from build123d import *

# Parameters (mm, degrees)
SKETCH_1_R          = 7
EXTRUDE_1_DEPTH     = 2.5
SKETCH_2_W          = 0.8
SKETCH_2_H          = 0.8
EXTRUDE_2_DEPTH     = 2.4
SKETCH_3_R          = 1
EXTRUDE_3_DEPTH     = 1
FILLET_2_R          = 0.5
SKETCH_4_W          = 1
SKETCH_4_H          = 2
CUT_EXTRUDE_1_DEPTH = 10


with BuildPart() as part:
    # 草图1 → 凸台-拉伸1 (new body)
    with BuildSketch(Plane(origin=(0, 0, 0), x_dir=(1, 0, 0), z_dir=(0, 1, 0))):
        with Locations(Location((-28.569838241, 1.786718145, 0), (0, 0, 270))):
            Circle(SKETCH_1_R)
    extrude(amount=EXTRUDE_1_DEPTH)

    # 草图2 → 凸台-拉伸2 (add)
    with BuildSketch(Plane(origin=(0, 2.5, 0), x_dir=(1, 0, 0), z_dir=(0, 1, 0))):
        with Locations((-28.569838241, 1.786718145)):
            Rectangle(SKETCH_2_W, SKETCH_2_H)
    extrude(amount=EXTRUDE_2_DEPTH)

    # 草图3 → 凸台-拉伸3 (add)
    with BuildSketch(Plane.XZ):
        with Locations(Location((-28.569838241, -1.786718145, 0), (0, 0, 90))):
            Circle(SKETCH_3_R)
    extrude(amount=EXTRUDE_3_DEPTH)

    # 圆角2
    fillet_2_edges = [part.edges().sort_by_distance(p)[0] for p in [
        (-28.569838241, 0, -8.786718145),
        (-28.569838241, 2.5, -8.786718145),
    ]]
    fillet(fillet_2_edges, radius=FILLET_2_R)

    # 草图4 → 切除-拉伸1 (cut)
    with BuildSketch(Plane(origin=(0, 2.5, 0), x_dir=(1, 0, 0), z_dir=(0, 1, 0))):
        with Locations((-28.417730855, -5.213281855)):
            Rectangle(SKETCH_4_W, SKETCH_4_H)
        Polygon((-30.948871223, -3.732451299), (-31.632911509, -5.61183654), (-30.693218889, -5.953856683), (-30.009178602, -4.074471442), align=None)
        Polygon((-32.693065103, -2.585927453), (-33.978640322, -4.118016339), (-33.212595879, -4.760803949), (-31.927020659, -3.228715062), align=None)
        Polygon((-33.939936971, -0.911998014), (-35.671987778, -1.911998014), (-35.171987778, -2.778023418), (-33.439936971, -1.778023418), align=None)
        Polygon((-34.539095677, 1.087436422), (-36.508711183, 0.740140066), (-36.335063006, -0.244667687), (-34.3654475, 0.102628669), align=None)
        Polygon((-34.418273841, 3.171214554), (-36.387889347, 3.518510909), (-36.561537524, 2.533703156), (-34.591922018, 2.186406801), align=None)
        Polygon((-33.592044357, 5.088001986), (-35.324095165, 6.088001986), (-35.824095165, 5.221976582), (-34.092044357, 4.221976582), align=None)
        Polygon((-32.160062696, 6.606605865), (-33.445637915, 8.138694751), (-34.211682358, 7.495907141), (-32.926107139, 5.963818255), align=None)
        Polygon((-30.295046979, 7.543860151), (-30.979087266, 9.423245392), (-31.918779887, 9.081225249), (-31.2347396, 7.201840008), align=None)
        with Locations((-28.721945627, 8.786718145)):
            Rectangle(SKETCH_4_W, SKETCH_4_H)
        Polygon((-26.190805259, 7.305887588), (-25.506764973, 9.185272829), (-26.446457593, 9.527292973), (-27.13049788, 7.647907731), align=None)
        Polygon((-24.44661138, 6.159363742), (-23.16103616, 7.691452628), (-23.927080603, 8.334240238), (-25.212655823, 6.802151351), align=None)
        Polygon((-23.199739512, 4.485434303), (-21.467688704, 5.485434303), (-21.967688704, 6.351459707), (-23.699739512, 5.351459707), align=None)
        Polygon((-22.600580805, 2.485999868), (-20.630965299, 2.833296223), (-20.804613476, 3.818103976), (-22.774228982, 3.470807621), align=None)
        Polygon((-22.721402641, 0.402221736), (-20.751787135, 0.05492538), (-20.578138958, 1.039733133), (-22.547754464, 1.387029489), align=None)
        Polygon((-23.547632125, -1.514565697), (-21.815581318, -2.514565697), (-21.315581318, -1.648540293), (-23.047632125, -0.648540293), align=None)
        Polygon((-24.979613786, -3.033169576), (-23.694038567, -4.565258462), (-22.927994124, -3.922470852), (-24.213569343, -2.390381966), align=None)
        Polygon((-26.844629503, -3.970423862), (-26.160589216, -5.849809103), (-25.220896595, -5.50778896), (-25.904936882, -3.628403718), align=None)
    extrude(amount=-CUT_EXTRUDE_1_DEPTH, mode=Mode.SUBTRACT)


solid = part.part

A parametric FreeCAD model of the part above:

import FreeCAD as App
import Part
import Sketcher
from FreeCAD import Vector
Q = App.Units.Quantity


def edges_at(feature, points):
    """Names of the edges that pass closest to the given points."""
    edges = feature.Shape.Edges
    near = lambda p: min(range(len(edges)), key=lambda i: edges[i].distToShape(Part.Vertex(*p))[0])
    return sorted({f"Edge{near(p) + 1}" for p in points})

doc = App.newDocument("Part")
body = doc.addObject("PartDesign::Body", "Body")

# Sketch on XZ plane
sketch1 = doc.addObject("Sketcher::SketchObject", "Sketch")
body.addObject(sketch1)
sketch1.AttachmentSupport = (doc.XZ_Plane, [""])
sketch1.MapMode = "FlatFace"
sketch1.addGeometry(Part.Circle(Vector(-28.569838, -1.786718, 0), Vector(0, 0, 1), 7), False)
sketch1.addConstraint([
    Sketcher.Constraint("Diameter", 0, Q("14 mm")),
    Sketcher.Constraint("DistanceX", 0, 3, -1, 1, Q("28.569838 mm")),
    Sketcher.Constraint("DistanceY", 0, 3, -1, 1, Q("1.786718 mm")),
])
pad1 = doc.addObject("PartDesign::Pad", "Pad")
body.addObject(pad1)
pad1.Profile = sketch1
pad1.Length = 2.5
pad1.Reversed = True

# Sketch on XZ plane
sketch2 = doc.addObject("Sketcher::SketchObject", "Sketch001")
body.addObject(sketch2)
sketch2.AttachmentSupport = (doc.XZ_Plane, [""])
sketch2.MapMode = "FlatFace"
sketch2.AttachmentOffset = App.Placement(Vector(0, 0, -2.5), App.Rotation())
sketch2.addGeometry([
    Part.LineSegment(Vector(-28.969838, -2.186718, 0), Vector(-28.969838, -1.386718, 0)),
    Part.LineSegment(Vector(-28.969838, -1.386718, 0), Vector(-28.169838, -1.386718, 0)),
    Part.LineSegment(Vector(-28.169838, -1.386718, 0), Vector(-28.169838, -2.186718, 0)),
    Part.LineSegment(Vector(-28.169838, -2.186718, 0), Vector(-28.969838, -2.186718, 0)),
], False)
sketch2.addConstraint([
    Sketcher.Constraint("Coincident", 0, 2, 1, 1),
    Sketcher.Constraint("Coincident", 1, 2, 2, 1),
    Sketcher.Constraint("Coincident", 2, 2, 3, 1),
    Sketcher.Constraint("Coincident", 3, 2, 0, 1),
    Sketcher.Constraint("Vertical", 0),
    Sketcher.Constraint("Horizontal", 1),
    Sketcher.Constraint("Vertical", 2),
    Sketcher.Constraint("Horizontal", 3),
    Sketcher.Constraint("Equal", 3, 0),
    Sketcher.Constraint("DistanceX", 1, 1, 1, 2, Q("0.8 mm")),
    Sketcher.Constraint("DistanceX", 0, 2, -1, 1, Q("28.969838 mm")),
    Sketcher.Constraint("DistanceY", 0, 2, -1, 1, Q("1.386718 mm")),
])
pad2 = doc.addObject("PartDesign::Pad", "Pad001")
body.addObject(pad2)
pad2.Profile = sketch2
pad2.Length = 2.4
pad2.Reversed = True

# Sketch on XZ plane
sketch3 = doc.addObject("Sketcher::SketchObject", "Sketch002")
body.addObject(sketch3)
sketch3.AttachmentSupport = (doc.XZ_Plane, [""])
sketch3.MapMode = "FlatFace"
sketch3.addGeometry(Part.Circle(Vector(-28.569838, -1.786718, 0), Vector(0, 0, 1), 1), False)
sketch3.addConstraint([
    Sketcher.Constraint("Diameter", 0, Q("2 mm")),
    Sketcher.Constraint("DistanceX", 0, 3, -1, 1, Q("28.569838 mm")),
    Sketcher.Constraint("DistanceY", 0, 3, -1, 1, Q("1.786718 mm")),
])
pad3 = doc.addObject("PartDesign::Pad", "Pad002")
body.addObject(pad3)
pad3.Profile = sketch3
pad3.Length = 1
doc.recompute()

fillet = doc.addObject("PartDesign::Fillet", "Fillet")
body.addObject(fillet)
fillet.Base = (pad3, edges_at(pad3, [(-28.57, 0, -8.787), (-28.57, 2.5, -8.787)]))
fillet.Radius = 0.5

# Sketch on XZ plane
sketch4 = doc.addObject("Sketcher::SketchObject", "Sketch003")
body.addObject(sketch4)
sketch4.AttachmentSupport = (doc.XZ_Plane, [""])
sketch4.MapMode = "FlatFace"
sketch4.AttachmentOffset = App.Placement(Vector(0, 0, -2.5), App.Rotation())
sketch4.addGeometry([
    Part.LineSegment(Vector(-28.917731, 4.213282, 0), Vector(-28.917731, 6.213282, 0)),  # 0
    Part.LineSegment(Vector(-28.917731, 6.213282, 0), Vector(-27.917731, 6.213282, 0)),  # 1
    Part.LineSegment(Vector(-27.917731, 6.213282, 0), Vector(-27.917731, 4.213282, 0)),  # 2
    Part.LineSegment(Vector(-27.917731, 4.213282, 0), Vector(-28.917731, 4.213282, 0)),  # 3
    Part.LineSegment(Vector(-30.948871, 3.732451, 0), Vector(-31.632912, 5.611837, 0)),  # 4
    Part.LineSegment(Vector(-31.632912, 5.611837, 0), Vector(-30.693219, 5.953857, 0)),  # 5
    Part.LineSegment(Vector(-30.693219, 5.953857, 0), Vector(-30.009179, 4.074471, 0)),  # 6
    Part.LineSegment(Vector(-30.009179, 4.074471, 0), Vector(-30.948871, 3.732451, 0)),  # 7
    Part.LineSegment(Vector(-32.693065, 2.585927, 0), Vector(-33.97864, 4.118016, 0)),  # 8
    Part.LineSegment(Vector(-33.97864, 4.118016, 0), Vector(-33.212596, 4.760804, 0)),  # 9
    Part.LineSegment(Vector(-33.212596, 4.760804, 0), Vector(-31.927021, 3.228715, 0)),  # 10
    Part.LineSegment(Vector(-31.927021, 3.228715, 0), Vector(-32.693065, 2.585927, 0)),  # 11
    Part.LineSegment(Vector(-33.939937, 0.911998, 0), Vector(-35.671988, 1.911998, 0)),  # 12
    Part.LineSegment(Vector(-35.671988, 1.911998, 0), Vector(-35.171988, 2.778023, 0)),  # 13
    Part.LineSegment(Vector(-35.171988, 2.778023, 0), Vector(-33.439937, 1.778023, 0)),  # 14
    Part.LineSegment(Vector(-33.439937, 1.778023, 0), Vector(-33.939937, 0.911998, 0)),  # 15
    Part.LineSegment(Vector(-34.539096, -1.087436, 0), Vector(-36.508711, -0.74014, 0)),  # 16
    Part.LineSegment(Vector(-36.508711, -0.74014, 0), Vector(-36.335063, 0.244668, 0)),  # 17
    Part.LineSegment(Vector(-36.335063, 0.244668, 0), Vector(-34.365448, -0.102629, 0)),  # 18
    Part.LineSegment(Vector(-34.365448, -0.102629, 0), Vector(-34.539096, -1.087436, 0)),  # 19
    Part.LineSegment(Vector(-34.418274, -3.171215, 0), Vector(-36.387889, -3.518511, 0)),  # 20
    Part.LineSegment(Vector(-36.387889, -3.518511, 0), Vector(-36.561538, -2.533703, 0)),  # 21
    Part.LineSegment(Vector(-36.561538, -2.533703, 0), Vector(-34.591922, -2.186407, 0)),  # 22
    Part.LineSegment(Vector(-34.591922, -2.186407, 0), Vector(-34.418274, -3.171215, 0)),  # 23
    Part.LineSegment(Vector(-33.592044, -5.088002, 0), Vector(-35.324095, -6.088002, 0)),  # 24
    Part.LineSegment(Vector(-35.324095, -6.088002, 0), Vector(-35.824095, -5.221977, 0)),  # 25
    Part.LineSegment(Vector(-35.824095, -5.221977, 0), Vector(-34.092044, -4.221977, 0)),  # 26
    Part.LineSegment(Vector(-34.092044, -4.221977, 0), Vector(-33.592044, -5.088002, 0)),  # 27
    Part.LineSegment(Vector(-32.160063, -6.606606, 0), Vector(-33.445638, -8.138695, 0)),  # 28
    Part.LineSegment(Vector(-33.445638, -8.138695, 0), Vector(-34.211682, -7.495907, 0)),  # 29
    Part.LineSegment(Vector(-34.211682, -7.495907, 0), Vector(-32.926107, -5.963818, 0)),  # 30
    Part.LineSegment(Vector(-32.926107, -5.963818, 0), Vector(-32.160063, -6.606606, 0)),  # 31
    Part.LineSegment(Vector(-30.295047, -7.54386, 0), Vector(-30.979087, -9.423245, 0)),  # 32
    Part.LineSegment(Vector(-30.979087, -9.423245, 0), Vector(-31.91878, -9.081225, 0)),  # 33
    Part.LineSegment(Vector(-31.91878, -9.081225, 0), Vector(-31.23474, -7.20184, 0)),  # 34
    Part.LineSegment(Vector(-31.23474, -7.20184, 0), Vector(-30.295047, -7.54386, 0)),  # 35
    Part.LineSegment(Vector(-29.221946, -9.786718, 0), Vector(-29.221946, -7.786718, 0)),  # 36
    Part.LineSegment(Vector(-29.221946, -7.786718, 0), Vector(-28.221946, -7.786718, 0)),  # 37
    Part.LineSegment(Vector(-28.221946, -7.786718, 0), Vector(-28.221946, -9.786718, 0)),  # 38
    Part.LineSegment(Vector(-28.221946, -9.786718, 0), Vector(-29.221946, -9.786718, 0)),  # 39
    Part.LineSegment(Vector(-26.190805, -7.305888, 0), Vector(-25.506765, -9.185273, 0)),  # 40
    Part.LineSegment(Vector(-25.506765, -9.185273, 0), Vector(-26.446458, -9.527293, 0)),  # 41
    Part.LineSegment(Vector(-26.446458, -9.527293, 0), Vector(-27.130498, -7.647908, 0)),  # 42
    Part.LineSegment(Vector(-27.130498, -7.647908, 0), Vector(-26.190805, -7.305888, 0)),  # 43
    Part.LineSegment(Vector(-24.446611, -6.159364, 0), Vector(-23.161036, -7.691453, 0)),  # 44
    Part.LineSegment(Vector(-23.161036, -7.691453, 0), Vector(-23.927081, -8.33424, 0)),  # 45
    Part.LineSegment(Vector(-23.927081, -8.33424, 0), Vector(-25.212656, -6.802151, 0)),  # 46
    Part.LineSegment(Vector(-25.212656, -6.802151, 0), Vector(-24.446611, -6.159364, 0)),  # 47
    Part.LineSegment(Vector(-23.19974, -4.485434, 0), Vector(-21.467689, -5.485434, 0)),  # 48
    Part.LineSegment(Vector(-21.467689, -5.485434, 0), Vector(-21.967689, -6.35146, 0)),  # 49
    Part.LineSegment(Vector(-21.967689, -6.35146, 0), Vector(-23.69974, -5.35146, 0)),  # 50
    Part.LineSegment(Vector(-23.69974, -5.35146, 0), Vector(-23.19974, -4.485434, 0)),  # 51
    Part.LineSegment(Vector(-22.600581, -2.486, 0), Vector(-20.630965, -2.833296, 0)),  # 52
    Part.LineSegment(Vector(-20.630965, -2.833296, 0), Vector(-20.804613, -3.818104, 0)),  # 53
    Part.LineSegment(Vector(-20.804613, -3.818104, 0), Vector(-22.774229, -3.470808, 0)),  # 54
    Part.LineSegment(Vector(-22.774229, -3.470808, 0), Vector(-22.600581, -2.486, 0)),  # 55
    Part.LineSegment(Vector(-22.721403, -0.402222, 0), Vector(-20.751787, -0.054925, 0)),  # 56
    Part.LineSegment(Vector(-20.751787, -0.054925, 0), Vector(-20.578139, -1.039733, 0)),  # 57
    Part.LineSegment(Vector(-20.578139, -1.039733, 0), Vector(-22.547754, -1.387029, 0)),  # 58
    Part.LineSegment(Vector(-22.547754, -1.387029, 0), Vector(-22.721403, -0.402222, 0)),  # 59
    Part.LineSegment(Vector(-23.547632, 1.514566, 0), Vector(-21.815581, 2.514566, 0)),  # 60
    Part.LineSegment(Vector(-21.815581, 2.514566, 0), Vector(-21.315581, 1.64854, 0)),  # 61
    Part.LineSegment(Vector(-21.315581, 1.64854, 0), Vector(-23.047632, 0.64854, 0)),  # 62
    Part.LineSegment(Vector(-23.047632, 0.64854, 0), Vector(-23.547632, 1.514566, 0)),  # 63
    Part.LineSegment(Vector(-24.979614, 3.03317, 0), Vector(-23.694039, 4.565258, 0)),  # 64
    Part.LineSegment(Vector(-23.694039, 4.565258, 0), Vector(-22.927994, 3.922471, 0)),  # 65
    Part.LineSegment(Vector(-22.927994, 3.922471, 0), Vector(-24.213569, 2.390382, 0)),  # 66
    Part.LineSegment(Vector(-24.213569, 2.390382, 0), Vector(-24.979614, 3.03317, 0)),  # 67
    Part.LineSegment(Vector(-26.84463, 3.970424, 0), Vector(-26.160589, 5.849809, 0)),  # 68
    Part.LineSegment(Vector(-26.160589, 5.849809, 0), Vector(-25.220897, 5.507789, 0)),  # 69
    Part.LineSegment(Vector(-25.220897, 5.507789, 0), Vector(-25.904937, 3.628404, 0)),  # 70
    Part.LineSegment(Vector(-25.904937, 3.628404, 0), Vector(-26.84463, 3.970424, 0)),  # 71
], False)
sketch4.addConstraint([
    Sketcher.Constraint("Coincident", 0, 2, 1, 1),
    Sketcher.Constraint("Coincident", 1, 2, 2, 1),
    Sketcher.Constraint("Coincident", 2, 2, 3, 1),
    Sketcher.Constraint("Coincident", 3, 2, 0, 1),
    Sketcher.Constraint("Coincident", 4, 2, 5, 1),
    Sketcher.Constraint("Coincident", 5, 2, 6, 1),
    Sketcher.Constraint("Coincident", 6, 2, 7, 1),
    Sketcher.Constraint("Coincident", 7, 2, 4, 1),
    Sketcher.Constraint("Coincident", 8, 2, 9, 1),
    Sketcher.Constraint("Coincident", 9, 2, 10, 1),
    Sketcher.Constraint("Coincident", 10, 2, 11, 1),
    Sketcher.Constraint("Coincident", 11, 2, 8, 1),
    Sketcher.Constraint("Coincident", 12, 2, 13, 1),
    Sketcher.Constraint("Coincident", 13, 2, 14, 1),
    Sketcher.Constraint("Coincident", 14, 2, 15, 1),
    Sketcher.Constraint("Coincident", 15, 2, 12, 1),
    Sketcher.Constraint("Coincident", 16, 2, 17, 1),
    Sketcher.Constraint("Coincident", 17, 2, 18, 1),
    Sketcher.Constraint("Coincident", 18, 2, 19, 1),
    Sketcher.Constraint("Coincident", 19, 2, 16, 1),
    Sketcher.Constraint("Coincident", 20, 2, 21, 1),
    Sketcher.Constraint("Coincident", 21, 2, 22, 1),
    Sketcher.Constraint("Coincident", 22, 2, 23, 1),
    Sketcher.Constraint("Coincident", 23, 2, 20, 1),
    Sketcher.Constraint("Coincident", 24, 2, 25, 1),
    Sketcher.Constraint("Coincident", 25, 2, 26, 1),
    Sketcher.Constraint("Coincident", 26, 2, 27, 1),
    Sketcher.Constraint("Coincident", 27, 2, 24, 1),
    Sketcher.Constraint("Coincident", 28, 2, 29, 1),
    Sketcher.Constraint("Coincident", 29, 2, 30, 1),
    Sketcher.Constraint("Coincident", 30, 2, 31, 1),
    Sketcher.Constraint("Coincident", 31, 2, 28, 1),
    Sketcher.Constraint("Coincident", 32, 2, 33, 1),
    Sketcher.Constraint("Coincident", 33, 2, 34, 1),
    Sketcher.Constraint("Coincident", 34, 2, 35, 1),
    Sketcher.Constraint("Coincident", 35, 2, 32, 1),
    Sketcher.Constraint("Coincident", 36, 2, 37, 1),
    Sketcher.Constraint("Coincident", 37, 2, 38, 1),
    Sketcher.Constraint("Coincident", 38, 2, 39, 1),
    Sketcher.Constraint("Coincident", 39, 2, 36, 1),
    Sketcher.Constraint("Coincident", 40, 2, 41, 1),
    Sketcher.Constraint("Coincident", 41, 2, 42, 1),
    Sketcher.Constraint("Coincident", 42, 2, 43, 1),
    Sketcher.Constraint("Coincident", 43, 2, 40, 1),
    Sketcher.Constraint("Coincident", 44, 2, 45, 1),
    Sketcher.Constraint("Coincident", 45, 2, 46, 1),
    Sketcher.Constraint("Coincident", 46, 2, 47, 1),
    Sketcher.Constraint("Coincident", 47, 2, 44, 1),
    Sketcher.Constraint("Coincident", 48, 2, 49, 1),
    Sketcher.Constraint("Coincident", 49, 2, 50, 1),
    Sketcher.Constraint("Coincident", 50, 2, 51, 1),
    Sketcher.Constraint("Coincident", 51, 2, 48, 1),
    Sketcher.Constraint("Coincident", 52, 2, 53, 1),
    Sketcher.Constraint("Coincident", 53, 2, 54, 1),
    Sketcher.Constraint("Coincident", 54, 2, 55, 1),
    Sketcher.Constraint("Coincident", 55, 2, 52, 1),
    Sketcher.Constraint("Coincident", 56, 2, 57, 1),
    Sketcher.Constraint("Coincident", 57, 2, 58, 1),
    Sketcher.Constraint("Coincident", 58, 2, 59, 1),
    Sketcher.Constraint("Coincident", 59, 2, 56, 1),
    Sketcher.Constraint("Coincident", 60, 2, 61, 1),
    Sketcher.Constraint("Coincident", 61, 2, 62, 1),
    Sketcher.Constraint("Coincident", 62, 2, 63, 1),
    Sketcher.Constraint("Coincident", 63, 2, 60, 1),
    Sketcher.Constraint("Coincident", 64, 2, 65, 1),
    Sketcher.Constraint("Coincident", 65, 2, 66, 1),
    Sketcher.Constraint("Coincident", 66, 2, 67, 1),
    Sketcher.Constraint("Coincident", 67, 2, 64, 1),
    Sketcher.Constraint("Coincident", 68, 2, 69, 1),
    Sketcher.Constraint("Coincident", 69, 2, 70, 1),
    Sketcher.Constraint("Coincident", 70, 2, 71, 1),
    Sketcher.Constraint("Coincident", 71, 2, 68, 1),
    Sketcher.Constraint("Vertical", 0),
    Sketcher.Constraint("Horizontal", 1),
    Sketcher.Constraint("Vertical", 2),
    Sketcher.Constraint("Horizontal", 3),
    Sketcher.Constraint("Vertical", 36),
    Sketcher.Constraint("Horizontal", 37),
    Sketcher.Constraint("Vertical", 38),
    Sketcher.Constraint("Horizontal", 39),
    Sketcher.Constraint("Perpendicular", 4, 5),
    Sketcher.Constraint("Perpendicular", 5, 6),
    Sketcher.Constraint("Perpendicular", 6, 7),
    Sketcher.Constraint("Perpendicular", 8, 9),
    Sketcher.Constraint("Perpendicular", 9, 10),
    Sketcher.Constraint("Perpendicular", 10, 11),
    Sketcher.Constraint("Perpendicular", 12, 13),
    Sketcher.Constraint("Perpendicular", 13, 14),
    Sketcher.Constraint("Perpendicular", 14, 15),
    Sketcher.Constraint("Perpendicular", 16, 17),
    Sketcher.Constraint("Perpendicular", 17, 18),
    Sketcher.Constraint("Perpendicular", 18, 19),
    Sketcher.Constraint("Perpendicular", 20, 21),
    Sketcher.Constraint("Perpendicular", 21, 22),
    Sketcher.Constraint("Perpendicular", 22, 23),
    Sketcher.Constraint("Perpendicular", 24, 25),
    Sketcher.Constraint("Perpendicular", 25, 26),
    Sketcher.Constraint("Perpendicular", 26, 27),
    Sketcher.Constraint("Perpendicular", 28, 29),
    Sketcher.Constraint("Perpendicular", 29, 30),
    Sketcher.Constraint("Perpendicular", 30, 31),
    Sketcher.Constraint("Perpendicular", 32, 33),
    Sketcher.Constraint("Perpendicular", 33, 34),
    Sketcher.Constraint("Perpendicular", 34, 35),
    Sketcher.Constraint("Perpendicular", 7, 40),
    Sketcher.Constraint("Perpendicular", 40, 41),
    Sketcher.Constraint("Perpendicular", 41, 42),
    Sketcher.Constraint("Perpendicular", 42, 43),
    Sketcher.Constraint("Perpendicular", 11, 44),
    Sketcher.Constraint("Perpendicular", 44, 45),
    Sketcher.Constraint("Perpendicular", 45, 46),
    Sketcher.Constraint("Perpendicular", 46, 47),
    Sketcher.Constraint("Perpendicular", 15, 48),
    Sketcher.Constraint("Perpendicular", 48, 49),
    Sketcher.Constraint("Perpendicular", 49, 50),
    Sketcher.Constraint("Perpendicular", 50, 51),
    Sketcher.Constraint("Perpendicular", 19, 52),
    Sketcher.Constraint("Perpendicular", 52, 53),
    Sketcher.Constraint("Perpendicular", 53, 54),
    Sketcher.Constraint("Perpendicular", 54, 55),
    Sketcher.Constraint("Perpendicular", 23, 56),
    Sketcher.Constraint("Perpendicular", 56, 57),
    Sketcher.Constraint("Perpendicular", 57, 58),
    Sketcher.Constraint("Perpendicular", 58, 59),
    Sketcher.Constraint("Perpendicular", 27, 60),
    Sketcher.Constraint("Perpendicular", 60, 61),
    Sketcher.Constraint("Perpendicular", 61, 62),
    Sketcher.Constraint("Perpendicular", 62, 63),
    Sketcher.Constraint("Perpendicular", 31, 64),
    Sketcher.Constraint("Perpendicular", 64, 65),
    Sketcher.Constraint("Perpendicular", 65, 66),
    Sketcher.Constraint("Perpendicular", 66, 67),
    Sketcher.Constraint("Perpendicular", 35, 68),
    Sketcher.Constraint("Perpendicular", 68, 69),
    Sketcher.Constraint("Perpendicular", 69, 70),
    Sketcher.Constraint("Perpendicular", 70, 71),
    Sketcher.Constraint("Equal", 3, 37),
    Sketcher.Constraint("Equal", 2, 36),
    Sketcher.Constraint("Equal", 6, 8),
    Sketcher.Constraint("Equal", 7, 9),
    Sketcher.Constraint("Equal", 10, 12),
    Sketcher.Constraint("Equal", 11, 13),
    Sketcher.Constraint("Equal", 14, 16),
    Sketcher.Constraint("Equal", 15, 17),
    Sketcher.Constraint("Equal", 18, 20),
    Sketcher.Constraint("Equal", 19, 21),
    Sketcher.Constraint("Equal", 22, 24),
    Sketcher.Constraint("Equal", 23, 25),
    Sketcher.Constraint("Equal", 26, 28),
    Sketcher.Constraint("Equal", 27, 29),
    Sketcher.Constraint("Equal", 30, 32),
    Sketcher.Constraint("Equal", 31, 33),
    Sketcher.Constraint("Equal", 34, 40),
    Sketcher.Constraint("Equal", 35, 41),
    Sketcher.Constraint("Equal", 42, 44),
    Sketcher.Constraint("Equal", 43, 45),
    Sketcher.Constraint("Equal", 46, 48),
    Sketcher.Constraint("Equal", 47, 49),
    Sketcher.Constraint("Equal", 50, 52),
    Sketcher.Constraint("Equal", 51, 53),
    Sketcher.Constraint("Equal", 54, 56),
    Sketcher.Constraint("Equal", 55, 57),
    Sketcher.Constraint("Equal", 58, 60),
    Sketcher.Constraint("Equal", 59, 61),
    Sketcher.Constraint("Equal", 62, 64),
    Sketcher.Constraint("Equal", 63, 65),
    Sketcher.Constraint("Equal", 66, 68),
    Sketcher.Constraint("Equal", 67, 69),
    Sketcher.Constraint("DistanceX", 1, 1, 1, 2, Q("1 mm")),
    Sketcher.Constraint("DistanceY", 0, 1, 0, 2, Q("2 mm")),
    Sketcher.Constraint("Angle", 4, Q("110 deg")),
    Sketcher.Constraint("Angle", 8, Q("130 deg")),
    Sketcher.Constraint("Angle", 12, Q("150 deg")),
    Sketcher.Constraint("Angle", 16, Q("170 deg")),
    Sketcher.Constraint("Angle", 20, Q("-170 deg")),
    Sketcher.Constraint("Angle", 24, Q("-150 deg")),
    Sketcher.Constraint("Angle", 28, Q("-130 deg")),
    Sketcher.Constraint("Angle", 32, Q("-110 deg")),
    Sketcher.Constraint("Distance", 4, Q("2 mm")),
    Sketcher.Constraint("Distance", 5, Q("1 mm")),
    Sketcher.Constraint("DistanceY", -1, 1, 12, 2, Q("1.911998 mm")),
    Sketcher.Constraint("DistanceY", 24, 2, -1, 1, Q("6.088002 mm")),
    Sketcher.Constraint("DistanceY", 55, 2, -1, 1, Q("2.486 mm")),
    Sketcher.Constraint("DistanceX", 0, 2, -1, 1, Q("28.917731 mm")),
    Sketcher.Constraint("DistanceY", -1, 1, 0, 2, Q("6.213282 mm")),
    Sketcher.Constraint("DistanceX", 4, 2, -1, 1, Q("31.632912 mm")),
    Sketcher.Constraint("DistanceY", -1, 1, 6, 2, Q("4.074471 mm")),
    Sketcher.Constraint("DistanceX", 8, 2, -1, 1, Q("33.97864 mm")),
    Sketcher.Constraint("DistanceX", 16, 2, -1, 1, Q("36.508711 mm")),
    Sketcher.Constraint("DistanceY", 16, 2, -1, 1, Q("0.74014 mm")),
    Sketcher.Constraint("DistanceX", 20, 2, -1, 1, Q("36.387889 mm")),
    Sketcher.Constraint("DistanceY", 20, 2, -1, 1, Q("3.518511 mm")),
    Sketcher.Constraint("DistanceY", 30, 2, -1, 1, Q("5.963818 mm")),
    Sketcher.Constraint("DistanceX", 33, 2, -1, 1, Q("31.91878 mm")),
    Sketcher.Constraint("DistanceY", 34, 2, -1, 1, Q("7.20184 mm")),
    Sketcher.Constraint("DistanceY", 36, 2, -1, 1, Q("7.786718 mm")),
    Sketcher.Constraint("DistanceX", 45, 2, -1, 1, Q("23.927081 mm")),
    Sketcher.Constraint("DistanceY", 45, 2, -1, 1, Q("8.33424 mm")),
    Sketcher.Constraint("DistanceX", 48, 2, -1, 1, Q("21.467689 mm")),
    Sketcher.Constraint("DistanceY", 49, 2, -1, 1, Q("6.35146 mm")),
    Sketcher.Constraint("DistanceX", 54, 2, -1, 1, Q("22.774229 mm")),
    Sketcher.Constraint("DistanceX", 57, 2, -1, 1, Q("20.578139 mm")),
    Sketcher.Constraint("DistanceY", 58, 2, -1, 1, Q("1.387029 mm")),
    Sketcher.Constraint("DistanceX", 60, 2, -1, 1, Q("21.815581 mm")),
    Sketcher.Constraint("DistanceY", -1, 1, 61, 2, Q("1.64854 mm")),
    Sketcher.Constraint("DistanceX", 64, 2, -1, 1, Q("23.694039 mm")),
    Sketcher.Constraint("DistanceY", -1, 1, 64, 2, Q("4.565258 mm")),
    Sketcher.Constraint("DistanceX", 68, 2, -1, 1, Q("26.160589 mm")),
    Sketcher.Constraint("DistanceY", -1, 1, 68, 2, Q("5.849809 mm")),
    Sketcher.Constraint("DistanceY", -1, 1, 8, 2, Q("4.118016 mm")),
    Sketcher.Constraint("DistanceX", 12, 2, -1, 1, Q("35.671988 mm")),
    Sketcher.Constraint("DistanceX", 24, 2, -1, 1, Q("35.324095 mm")),
    Sketcher.Constraint("DistanceX", 28, 2, -1, 1, Q("33.445638 mm")),
    Sketcher.Constraint("DistanceX", 36, 2, -1, 1, Q("29.221946 mm")),
    Sketcher.Constraint("DistanceX", 40, 2, -1, 1, Q("25.506765 mm")),
    Sketcher.Constraint("DistanceY", 40, 2, -1, 1, Q("9.185273 mm")),
])
pocket1 = doc.addObject("PartDesign::Pocket", "Pocket")
body.addObject(pocket1)
pocket1.Profile = sketch4
pocket1.Length = 10
pocket1.Reversed = True

doc.recompute()
